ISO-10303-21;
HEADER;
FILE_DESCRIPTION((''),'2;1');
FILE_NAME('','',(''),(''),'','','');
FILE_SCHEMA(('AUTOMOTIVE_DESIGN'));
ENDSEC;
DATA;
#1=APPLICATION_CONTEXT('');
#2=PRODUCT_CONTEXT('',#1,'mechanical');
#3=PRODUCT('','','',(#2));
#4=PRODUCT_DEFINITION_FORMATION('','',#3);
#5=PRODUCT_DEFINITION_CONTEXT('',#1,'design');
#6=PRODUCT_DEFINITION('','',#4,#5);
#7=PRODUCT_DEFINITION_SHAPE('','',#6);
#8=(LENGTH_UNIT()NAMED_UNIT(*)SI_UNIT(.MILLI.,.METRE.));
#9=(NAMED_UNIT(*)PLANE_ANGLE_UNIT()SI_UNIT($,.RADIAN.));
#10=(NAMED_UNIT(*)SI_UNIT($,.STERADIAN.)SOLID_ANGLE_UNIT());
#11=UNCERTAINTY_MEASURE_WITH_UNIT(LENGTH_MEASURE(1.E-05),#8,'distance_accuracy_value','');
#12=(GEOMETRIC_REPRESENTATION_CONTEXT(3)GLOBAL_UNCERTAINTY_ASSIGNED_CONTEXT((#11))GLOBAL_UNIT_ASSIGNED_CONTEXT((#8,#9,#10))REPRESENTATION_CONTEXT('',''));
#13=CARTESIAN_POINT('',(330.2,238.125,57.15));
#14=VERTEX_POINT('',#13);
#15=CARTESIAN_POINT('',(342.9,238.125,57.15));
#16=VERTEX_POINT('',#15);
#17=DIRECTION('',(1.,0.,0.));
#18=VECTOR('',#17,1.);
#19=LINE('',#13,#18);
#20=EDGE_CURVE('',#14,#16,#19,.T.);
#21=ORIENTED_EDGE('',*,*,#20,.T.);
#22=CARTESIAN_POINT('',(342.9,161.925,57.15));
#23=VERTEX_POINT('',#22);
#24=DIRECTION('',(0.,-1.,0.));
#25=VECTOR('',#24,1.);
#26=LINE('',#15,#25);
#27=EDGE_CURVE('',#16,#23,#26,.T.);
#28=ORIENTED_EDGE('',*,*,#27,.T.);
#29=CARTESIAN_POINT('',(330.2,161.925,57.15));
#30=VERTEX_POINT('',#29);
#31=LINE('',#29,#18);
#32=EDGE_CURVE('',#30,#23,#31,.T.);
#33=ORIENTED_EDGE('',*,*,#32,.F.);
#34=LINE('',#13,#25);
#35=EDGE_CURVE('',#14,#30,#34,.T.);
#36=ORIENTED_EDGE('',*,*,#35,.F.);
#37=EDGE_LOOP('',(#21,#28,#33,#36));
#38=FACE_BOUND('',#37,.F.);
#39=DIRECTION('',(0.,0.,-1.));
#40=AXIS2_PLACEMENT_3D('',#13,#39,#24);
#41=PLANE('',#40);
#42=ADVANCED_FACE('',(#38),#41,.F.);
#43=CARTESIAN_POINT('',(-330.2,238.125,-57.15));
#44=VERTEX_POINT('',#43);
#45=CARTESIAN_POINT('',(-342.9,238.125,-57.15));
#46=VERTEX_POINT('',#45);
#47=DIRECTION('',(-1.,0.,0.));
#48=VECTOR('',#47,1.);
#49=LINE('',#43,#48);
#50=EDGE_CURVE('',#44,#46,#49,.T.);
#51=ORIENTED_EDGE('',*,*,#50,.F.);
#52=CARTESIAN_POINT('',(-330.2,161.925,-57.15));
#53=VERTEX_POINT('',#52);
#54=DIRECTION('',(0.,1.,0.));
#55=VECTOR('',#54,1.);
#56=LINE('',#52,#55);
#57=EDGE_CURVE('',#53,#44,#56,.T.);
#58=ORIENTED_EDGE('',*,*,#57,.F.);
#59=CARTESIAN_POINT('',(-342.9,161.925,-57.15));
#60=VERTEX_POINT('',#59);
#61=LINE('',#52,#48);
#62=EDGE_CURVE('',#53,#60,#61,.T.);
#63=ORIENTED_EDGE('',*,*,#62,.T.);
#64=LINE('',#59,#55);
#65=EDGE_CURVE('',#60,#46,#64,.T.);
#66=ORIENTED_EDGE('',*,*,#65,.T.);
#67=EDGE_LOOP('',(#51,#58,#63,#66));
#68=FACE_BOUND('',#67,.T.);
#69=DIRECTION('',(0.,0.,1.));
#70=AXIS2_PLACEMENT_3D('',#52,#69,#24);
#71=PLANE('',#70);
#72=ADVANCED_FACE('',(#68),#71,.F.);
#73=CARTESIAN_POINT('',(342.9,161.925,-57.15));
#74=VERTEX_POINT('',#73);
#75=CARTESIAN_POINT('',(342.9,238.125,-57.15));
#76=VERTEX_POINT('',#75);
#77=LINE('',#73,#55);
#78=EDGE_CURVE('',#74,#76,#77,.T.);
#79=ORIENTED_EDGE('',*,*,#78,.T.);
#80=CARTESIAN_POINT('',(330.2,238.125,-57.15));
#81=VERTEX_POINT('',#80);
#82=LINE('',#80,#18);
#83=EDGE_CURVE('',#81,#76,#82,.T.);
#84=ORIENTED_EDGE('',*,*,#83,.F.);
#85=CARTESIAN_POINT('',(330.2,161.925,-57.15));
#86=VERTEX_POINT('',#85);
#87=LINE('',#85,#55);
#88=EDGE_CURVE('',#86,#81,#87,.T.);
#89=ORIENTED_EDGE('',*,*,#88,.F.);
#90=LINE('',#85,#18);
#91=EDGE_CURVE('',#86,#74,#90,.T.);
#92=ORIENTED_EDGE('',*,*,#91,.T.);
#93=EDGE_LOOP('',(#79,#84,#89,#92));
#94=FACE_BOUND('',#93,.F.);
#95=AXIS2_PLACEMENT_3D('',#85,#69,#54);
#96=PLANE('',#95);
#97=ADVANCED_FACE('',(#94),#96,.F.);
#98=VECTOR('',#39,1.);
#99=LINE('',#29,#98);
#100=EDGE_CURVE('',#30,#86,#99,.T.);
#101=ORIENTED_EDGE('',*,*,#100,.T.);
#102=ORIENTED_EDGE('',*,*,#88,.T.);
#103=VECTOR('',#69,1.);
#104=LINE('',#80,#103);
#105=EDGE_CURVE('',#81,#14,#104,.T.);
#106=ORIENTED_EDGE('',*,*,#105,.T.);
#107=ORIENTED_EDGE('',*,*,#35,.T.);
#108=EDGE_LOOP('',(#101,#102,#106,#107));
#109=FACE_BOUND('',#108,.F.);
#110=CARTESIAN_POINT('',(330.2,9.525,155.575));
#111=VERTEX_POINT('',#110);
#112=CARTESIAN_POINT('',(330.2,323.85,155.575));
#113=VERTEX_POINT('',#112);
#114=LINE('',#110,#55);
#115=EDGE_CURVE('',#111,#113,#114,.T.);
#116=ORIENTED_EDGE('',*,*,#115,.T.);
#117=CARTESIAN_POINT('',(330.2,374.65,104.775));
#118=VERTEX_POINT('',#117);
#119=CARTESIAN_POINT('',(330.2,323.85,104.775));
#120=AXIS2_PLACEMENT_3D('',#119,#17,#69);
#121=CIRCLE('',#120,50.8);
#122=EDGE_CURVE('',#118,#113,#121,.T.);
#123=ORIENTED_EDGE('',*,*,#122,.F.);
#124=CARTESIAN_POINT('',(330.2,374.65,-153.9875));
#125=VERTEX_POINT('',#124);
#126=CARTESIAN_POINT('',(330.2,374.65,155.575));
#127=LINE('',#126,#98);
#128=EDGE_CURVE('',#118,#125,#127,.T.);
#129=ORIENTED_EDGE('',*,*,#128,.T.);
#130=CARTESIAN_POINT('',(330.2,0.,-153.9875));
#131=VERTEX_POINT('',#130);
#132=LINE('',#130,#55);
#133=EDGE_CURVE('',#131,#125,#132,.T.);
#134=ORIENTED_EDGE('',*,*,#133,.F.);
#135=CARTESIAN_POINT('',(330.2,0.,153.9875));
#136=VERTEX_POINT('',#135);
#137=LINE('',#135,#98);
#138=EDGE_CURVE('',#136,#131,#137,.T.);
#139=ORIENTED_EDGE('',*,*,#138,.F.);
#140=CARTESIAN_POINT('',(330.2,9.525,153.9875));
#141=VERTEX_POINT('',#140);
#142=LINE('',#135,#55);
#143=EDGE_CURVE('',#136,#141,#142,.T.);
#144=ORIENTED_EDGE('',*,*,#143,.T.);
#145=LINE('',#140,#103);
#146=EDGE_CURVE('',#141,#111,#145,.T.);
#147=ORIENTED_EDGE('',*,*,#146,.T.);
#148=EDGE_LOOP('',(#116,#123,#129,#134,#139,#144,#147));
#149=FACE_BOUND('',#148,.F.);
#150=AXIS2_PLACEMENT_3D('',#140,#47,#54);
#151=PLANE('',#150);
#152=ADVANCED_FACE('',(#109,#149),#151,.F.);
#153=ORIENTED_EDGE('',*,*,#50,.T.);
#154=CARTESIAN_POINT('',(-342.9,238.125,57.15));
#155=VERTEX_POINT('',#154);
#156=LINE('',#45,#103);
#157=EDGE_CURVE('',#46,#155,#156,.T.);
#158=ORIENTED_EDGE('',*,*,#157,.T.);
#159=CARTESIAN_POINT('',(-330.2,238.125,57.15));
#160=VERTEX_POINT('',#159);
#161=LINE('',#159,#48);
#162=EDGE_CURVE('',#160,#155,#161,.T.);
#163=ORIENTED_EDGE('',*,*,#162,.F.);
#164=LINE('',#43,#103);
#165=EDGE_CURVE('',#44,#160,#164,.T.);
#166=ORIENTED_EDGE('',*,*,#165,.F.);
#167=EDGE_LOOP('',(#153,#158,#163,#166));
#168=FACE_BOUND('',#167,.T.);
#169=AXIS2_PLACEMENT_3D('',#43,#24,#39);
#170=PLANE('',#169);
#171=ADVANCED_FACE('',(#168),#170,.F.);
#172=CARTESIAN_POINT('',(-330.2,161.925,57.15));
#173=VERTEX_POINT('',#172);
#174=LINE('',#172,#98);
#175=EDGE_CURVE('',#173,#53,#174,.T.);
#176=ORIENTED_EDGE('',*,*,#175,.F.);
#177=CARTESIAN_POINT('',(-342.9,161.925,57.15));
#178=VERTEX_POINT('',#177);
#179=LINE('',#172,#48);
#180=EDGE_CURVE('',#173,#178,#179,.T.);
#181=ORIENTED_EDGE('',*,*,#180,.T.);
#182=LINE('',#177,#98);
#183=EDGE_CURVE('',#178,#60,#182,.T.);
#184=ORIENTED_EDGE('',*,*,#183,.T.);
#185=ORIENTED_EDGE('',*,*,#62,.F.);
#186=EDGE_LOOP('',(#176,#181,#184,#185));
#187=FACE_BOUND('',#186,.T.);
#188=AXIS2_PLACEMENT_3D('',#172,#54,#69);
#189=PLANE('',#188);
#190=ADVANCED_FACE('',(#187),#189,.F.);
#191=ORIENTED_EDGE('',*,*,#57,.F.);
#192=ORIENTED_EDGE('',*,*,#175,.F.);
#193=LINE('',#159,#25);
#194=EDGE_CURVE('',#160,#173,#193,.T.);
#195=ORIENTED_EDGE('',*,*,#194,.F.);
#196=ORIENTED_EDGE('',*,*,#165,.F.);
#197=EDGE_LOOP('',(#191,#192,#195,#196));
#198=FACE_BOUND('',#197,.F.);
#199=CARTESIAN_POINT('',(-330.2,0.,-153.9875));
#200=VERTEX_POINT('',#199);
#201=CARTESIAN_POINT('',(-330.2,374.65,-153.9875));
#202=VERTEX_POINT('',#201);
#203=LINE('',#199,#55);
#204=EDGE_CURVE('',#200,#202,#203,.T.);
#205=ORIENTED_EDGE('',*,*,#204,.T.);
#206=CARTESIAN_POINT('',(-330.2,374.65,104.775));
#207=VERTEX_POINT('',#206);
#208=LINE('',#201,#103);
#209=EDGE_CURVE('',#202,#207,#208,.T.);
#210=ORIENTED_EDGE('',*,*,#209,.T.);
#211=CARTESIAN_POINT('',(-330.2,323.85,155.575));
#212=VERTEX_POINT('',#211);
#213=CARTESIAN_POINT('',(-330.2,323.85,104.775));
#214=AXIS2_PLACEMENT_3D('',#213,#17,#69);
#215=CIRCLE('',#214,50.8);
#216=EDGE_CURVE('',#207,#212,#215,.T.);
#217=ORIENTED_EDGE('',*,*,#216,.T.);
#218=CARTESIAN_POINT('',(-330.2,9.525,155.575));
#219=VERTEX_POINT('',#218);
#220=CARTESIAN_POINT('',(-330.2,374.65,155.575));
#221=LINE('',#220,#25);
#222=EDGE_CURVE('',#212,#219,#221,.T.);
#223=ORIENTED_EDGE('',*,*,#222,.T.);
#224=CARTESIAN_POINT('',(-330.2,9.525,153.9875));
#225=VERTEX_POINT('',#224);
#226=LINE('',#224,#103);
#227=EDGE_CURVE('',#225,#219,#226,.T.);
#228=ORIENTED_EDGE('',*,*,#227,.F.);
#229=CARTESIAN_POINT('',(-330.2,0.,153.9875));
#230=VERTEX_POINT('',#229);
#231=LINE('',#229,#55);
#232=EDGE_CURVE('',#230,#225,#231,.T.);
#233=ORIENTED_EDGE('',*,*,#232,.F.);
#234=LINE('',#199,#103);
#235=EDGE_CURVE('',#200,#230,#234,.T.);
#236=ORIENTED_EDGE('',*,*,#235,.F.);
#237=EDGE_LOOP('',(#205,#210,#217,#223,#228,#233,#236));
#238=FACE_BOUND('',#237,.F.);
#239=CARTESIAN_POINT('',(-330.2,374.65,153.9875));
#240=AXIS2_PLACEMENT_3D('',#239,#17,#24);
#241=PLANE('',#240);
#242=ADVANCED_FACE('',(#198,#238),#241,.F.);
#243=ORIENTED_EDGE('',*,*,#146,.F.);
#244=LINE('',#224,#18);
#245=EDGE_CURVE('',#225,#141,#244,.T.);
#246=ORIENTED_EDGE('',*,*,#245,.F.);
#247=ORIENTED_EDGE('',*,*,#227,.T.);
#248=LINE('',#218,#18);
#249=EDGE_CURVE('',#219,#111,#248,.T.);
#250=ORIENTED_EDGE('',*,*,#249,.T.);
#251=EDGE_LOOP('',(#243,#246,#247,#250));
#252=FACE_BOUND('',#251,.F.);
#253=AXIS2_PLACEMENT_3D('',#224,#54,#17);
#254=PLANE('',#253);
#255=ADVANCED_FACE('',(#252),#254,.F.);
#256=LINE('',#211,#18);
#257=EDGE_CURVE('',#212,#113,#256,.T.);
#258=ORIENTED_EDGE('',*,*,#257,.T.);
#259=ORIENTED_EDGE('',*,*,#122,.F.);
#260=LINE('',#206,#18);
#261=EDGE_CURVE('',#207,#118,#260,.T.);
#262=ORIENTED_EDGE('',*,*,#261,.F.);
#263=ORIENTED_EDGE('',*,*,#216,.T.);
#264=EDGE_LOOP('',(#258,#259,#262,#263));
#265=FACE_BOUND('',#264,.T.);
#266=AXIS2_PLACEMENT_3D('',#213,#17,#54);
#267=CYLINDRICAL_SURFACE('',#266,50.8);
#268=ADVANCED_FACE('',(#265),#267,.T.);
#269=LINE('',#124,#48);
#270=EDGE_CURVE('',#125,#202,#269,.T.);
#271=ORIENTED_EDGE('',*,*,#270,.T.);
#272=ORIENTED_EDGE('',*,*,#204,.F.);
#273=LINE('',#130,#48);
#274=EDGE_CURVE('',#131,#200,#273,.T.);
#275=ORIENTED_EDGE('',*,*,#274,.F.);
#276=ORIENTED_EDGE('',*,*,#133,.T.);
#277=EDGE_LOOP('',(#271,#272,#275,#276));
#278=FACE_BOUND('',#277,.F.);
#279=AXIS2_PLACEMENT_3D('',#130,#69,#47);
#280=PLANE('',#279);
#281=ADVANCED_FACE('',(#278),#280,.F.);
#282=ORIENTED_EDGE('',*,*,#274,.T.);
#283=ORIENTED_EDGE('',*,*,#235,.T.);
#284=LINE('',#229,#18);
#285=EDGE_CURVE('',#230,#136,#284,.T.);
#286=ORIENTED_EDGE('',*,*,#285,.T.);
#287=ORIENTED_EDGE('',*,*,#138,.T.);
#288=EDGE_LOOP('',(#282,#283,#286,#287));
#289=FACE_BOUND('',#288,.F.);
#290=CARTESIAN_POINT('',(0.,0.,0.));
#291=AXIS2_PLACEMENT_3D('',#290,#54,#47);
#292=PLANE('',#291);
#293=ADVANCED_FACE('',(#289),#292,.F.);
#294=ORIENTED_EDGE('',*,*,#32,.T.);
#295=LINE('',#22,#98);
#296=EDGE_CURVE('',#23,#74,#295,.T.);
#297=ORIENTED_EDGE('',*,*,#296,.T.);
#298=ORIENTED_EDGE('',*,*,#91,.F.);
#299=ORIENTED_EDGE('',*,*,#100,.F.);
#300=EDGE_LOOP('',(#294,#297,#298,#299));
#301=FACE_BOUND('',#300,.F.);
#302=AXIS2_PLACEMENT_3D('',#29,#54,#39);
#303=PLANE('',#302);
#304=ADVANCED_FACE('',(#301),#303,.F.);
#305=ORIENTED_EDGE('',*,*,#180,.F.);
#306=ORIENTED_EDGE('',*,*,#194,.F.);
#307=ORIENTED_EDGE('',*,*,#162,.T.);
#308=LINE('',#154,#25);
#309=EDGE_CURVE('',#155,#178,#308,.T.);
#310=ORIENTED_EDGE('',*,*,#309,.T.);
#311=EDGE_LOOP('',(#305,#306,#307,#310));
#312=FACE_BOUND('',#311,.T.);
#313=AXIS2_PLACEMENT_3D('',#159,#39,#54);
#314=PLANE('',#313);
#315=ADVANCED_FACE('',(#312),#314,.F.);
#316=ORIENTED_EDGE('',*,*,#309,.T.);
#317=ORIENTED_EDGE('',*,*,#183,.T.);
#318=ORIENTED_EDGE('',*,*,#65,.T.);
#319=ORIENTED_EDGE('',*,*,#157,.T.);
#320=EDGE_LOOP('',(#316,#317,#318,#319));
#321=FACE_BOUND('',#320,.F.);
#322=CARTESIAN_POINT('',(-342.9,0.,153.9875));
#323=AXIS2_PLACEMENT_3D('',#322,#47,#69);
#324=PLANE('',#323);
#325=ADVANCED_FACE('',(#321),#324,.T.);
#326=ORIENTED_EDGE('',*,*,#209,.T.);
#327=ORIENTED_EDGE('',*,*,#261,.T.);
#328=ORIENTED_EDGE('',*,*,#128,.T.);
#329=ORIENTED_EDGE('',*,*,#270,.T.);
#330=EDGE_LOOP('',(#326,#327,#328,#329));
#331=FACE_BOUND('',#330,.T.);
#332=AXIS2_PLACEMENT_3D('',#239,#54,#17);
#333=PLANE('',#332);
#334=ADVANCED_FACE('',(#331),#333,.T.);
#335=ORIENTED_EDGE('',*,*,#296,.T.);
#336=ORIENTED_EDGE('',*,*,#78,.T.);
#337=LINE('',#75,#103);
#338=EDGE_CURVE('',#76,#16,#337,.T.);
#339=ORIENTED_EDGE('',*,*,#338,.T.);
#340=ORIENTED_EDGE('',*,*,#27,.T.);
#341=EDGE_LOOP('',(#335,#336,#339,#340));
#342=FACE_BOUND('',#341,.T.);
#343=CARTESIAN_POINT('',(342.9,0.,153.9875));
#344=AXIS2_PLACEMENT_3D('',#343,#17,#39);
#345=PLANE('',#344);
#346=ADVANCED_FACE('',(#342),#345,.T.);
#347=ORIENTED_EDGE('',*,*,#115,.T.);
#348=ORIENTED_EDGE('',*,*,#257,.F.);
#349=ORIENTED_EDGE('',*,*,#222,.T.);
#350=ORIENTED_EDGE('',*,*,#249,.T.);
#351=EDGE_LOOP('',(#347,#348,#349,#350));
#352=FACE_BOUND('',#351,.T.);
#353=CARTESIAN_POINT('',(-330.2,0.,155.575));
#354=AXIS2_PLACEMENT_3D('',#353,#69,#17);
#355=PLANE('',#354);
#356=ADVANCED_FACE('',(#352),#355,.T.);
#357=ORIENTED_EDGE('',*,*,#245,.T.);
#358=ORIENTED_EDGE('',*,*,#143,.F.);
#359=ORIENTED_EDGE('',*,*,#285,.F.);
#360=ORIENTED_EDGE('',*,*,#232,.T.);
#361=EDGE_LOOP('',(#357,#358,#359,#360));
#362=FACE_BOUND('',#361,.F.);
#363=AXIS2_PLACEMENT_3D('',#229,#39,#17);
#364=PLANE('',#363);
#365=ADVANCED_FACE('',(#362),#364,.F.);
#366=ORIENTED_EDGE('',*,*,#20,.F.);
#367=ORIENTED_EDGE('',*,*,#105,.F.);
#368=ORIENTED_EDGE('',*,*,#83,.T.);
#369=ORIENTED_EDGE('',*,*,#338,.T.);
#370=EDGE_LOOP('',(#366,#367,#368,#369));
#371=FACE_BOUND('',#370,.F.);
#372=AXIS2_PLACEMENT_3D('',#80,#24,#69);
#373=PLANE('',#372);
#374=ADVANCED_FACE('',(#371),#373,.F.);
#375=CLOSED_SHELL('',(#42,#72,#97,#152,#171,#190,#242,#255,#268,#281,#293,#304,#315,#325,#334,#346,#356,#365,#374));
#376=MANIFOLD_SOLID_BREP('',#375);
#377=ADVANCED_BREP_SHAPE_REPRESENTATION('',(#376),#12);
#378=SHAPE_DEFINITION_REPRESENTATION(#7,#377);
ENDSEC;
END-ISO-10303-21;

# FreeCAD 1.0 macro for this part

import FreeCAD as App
import Part
import Sketcher
from FreeCAD import Vector
Q = App.Units.Quantity


def edges_at(feature, points):
    """Names of the edges that pass closest to the given points."""
    edges = feature.Shape.Edges
    near = lambda p: min(range(len(edges)), key=lambda i: edges[i].distToShape(Part.Vertex(*p))[0])
    return sorted({f"Edge{near(p) + 1}" for p in points})


def add_polygon(sketch, points):
    """Adds a closed chain of lines whose ends are joined by coincident constraints."""
    first, n = sketch.GeometryCount, len(points)
    for a, b in zip(points, points[1:] + points[:1]):
        sketch.addGeometry(Part.LineSegment(App.Vector(*a, 0), App.Vector(*b, 0)), False)
    for i in range(n):
        sketch.addConstraint(Sketcher.Constraint("Coincident", first + i, 2, first + (i + 1) % n, 1))

doc = App.newDocument("Part")
body = doc.addObject("PartDesign::Body", "Body")

sketch1 = body.newObject("Sketcher::SketchObject", "Sketch")
sketch1.AttachmentSupport = (doc.getObject("XZ_Plane"), [""])
sketch1.MapMode = "FlatFace"
add_polygon(sketch1, [(-330, -154), (-330, 154), (330, 154), (330, -154)])
sketch1.addConstraint([
    Sketcher.Constraint("Vertical", 0),
    Sketcher.Constraint("Horizontal", 1),
    Sketcher.Constraint("Vertical", 2),
    Sketcher.Constraint("Horizontal", 3),
    Sketcher.Constraint("Symmetric", 0, 2, 2, 2, -1, 1),
    Sketcher.Constraint("DistanceX", 1, 1, 1, 2, Q("26 in")),
    Sketcher.Constraint("DistanceY", 0, 1, 0, 2, Q("12.125 in")),
])
pad1 = body.newObject("PartDesign::Pad", "Pad")
pad1.Profile = sketch1
pad1.Length = Q("14.75 in")
pad1.Reversed = True

sketch2 = body.newObject("Sketcher::SketchObject", "Sketch001")
sketch2.AttachmentSupport = (doc.getObject("YZ_Plane"), [""])
sketch2.MapMode = "FlatFace"
sketch2.AttachmentOffset = App.Placement(Vector(0, 0, 13 * 25.4), App.Rotation())
add_polygon(sketch2, [(238, 57), (162, 57), (162, -57), (238, -57)])
sketch2.addConstraint([
    Sketcher.Constraint("Horizontal", 0),
    Sketcher.Constraint("Vertical", 1),
    Sketcher.Constraint("Horizontal", 2),
    Sketcher.Constraint("Vertical", 3),
    Sketcher.Constraint("DistanceX", 0, 2, 0, 1, Q("3 in")),
    Sketcher.Constraint("DistanceY", 1, 2, 1, 1, Q("4.5 in")),
    Sketcher.Constraint("DistanceX", -1, 1, 0, 2, Q("6.375 in")),
    Sketcher.Constraint("DistanceY", -1, 1, 0, 2, Q("2.25 in")),
])
pad2 = body.newObject("PartDesign::Pad", "Pad001")
pad2.Profile = sketch2
pad2.Length = Q("0.5 in")
doc.recompute()

mirrored = body.newObject("PartDesign::Mirrored", "Mirrored")
mirrored.Originals = [pad2]
mirrored.MirrorPlane = (doc.getObject("YZ_Plane"), [""])
body.Tip = mirrored

sketch3 = body.newObject("Sketcher::SketchObject", "Sketch002")
sketch3.AttachmentSupport = (doc.getObject("XY_Plane"), [""])
sketch3.MapMode = "FlatFace"
sketch3.AttachmentOffset = App.Placement(Vector(0, 0, 6.0625 * 25.4), App.Rotation())
add_polygon(sketch3, [(330, 375), (-330, 375), (-330, 10), (330, 10)])
sketch3.addConstraint([
    Sketcher.Constraint("Horizontal", 0),
    Sketcher.Constraint("Vertical", 1),
    Sketcher.Constraint("Horizontal", 2),
    Sketcher.Constraint("Vertical", 3),
    Sketcher.Constraint("DistanceX", 0, 2, 0, 1, Q("26 in")),
    Sketcher.Constraint("DistanceY", -1, 1, 1, 2, Q("0.375 in")),
    Sketcher.Constraint("DistanceX", 0, 2, -1, 1, Q("13 in")),
    Sketcher.Constraint("DistanceY", 1, 2, 1, 1, Q("14.375 in")),
])
pad3 = body.newObject("PartDesign::Pad", "Pad002")
pad3.Profile = sketch3
pad3.Length = Q("0.0625 in")
doc.recompute()

fillet = body.newObject("PartDesign::Fillet", "Fillet")
fillet.Base = (pad3, edges_at(pad3, [(0, 374.65, 155.575)]))
fillet.Radius = Q("2 in")

doc.recompute()
